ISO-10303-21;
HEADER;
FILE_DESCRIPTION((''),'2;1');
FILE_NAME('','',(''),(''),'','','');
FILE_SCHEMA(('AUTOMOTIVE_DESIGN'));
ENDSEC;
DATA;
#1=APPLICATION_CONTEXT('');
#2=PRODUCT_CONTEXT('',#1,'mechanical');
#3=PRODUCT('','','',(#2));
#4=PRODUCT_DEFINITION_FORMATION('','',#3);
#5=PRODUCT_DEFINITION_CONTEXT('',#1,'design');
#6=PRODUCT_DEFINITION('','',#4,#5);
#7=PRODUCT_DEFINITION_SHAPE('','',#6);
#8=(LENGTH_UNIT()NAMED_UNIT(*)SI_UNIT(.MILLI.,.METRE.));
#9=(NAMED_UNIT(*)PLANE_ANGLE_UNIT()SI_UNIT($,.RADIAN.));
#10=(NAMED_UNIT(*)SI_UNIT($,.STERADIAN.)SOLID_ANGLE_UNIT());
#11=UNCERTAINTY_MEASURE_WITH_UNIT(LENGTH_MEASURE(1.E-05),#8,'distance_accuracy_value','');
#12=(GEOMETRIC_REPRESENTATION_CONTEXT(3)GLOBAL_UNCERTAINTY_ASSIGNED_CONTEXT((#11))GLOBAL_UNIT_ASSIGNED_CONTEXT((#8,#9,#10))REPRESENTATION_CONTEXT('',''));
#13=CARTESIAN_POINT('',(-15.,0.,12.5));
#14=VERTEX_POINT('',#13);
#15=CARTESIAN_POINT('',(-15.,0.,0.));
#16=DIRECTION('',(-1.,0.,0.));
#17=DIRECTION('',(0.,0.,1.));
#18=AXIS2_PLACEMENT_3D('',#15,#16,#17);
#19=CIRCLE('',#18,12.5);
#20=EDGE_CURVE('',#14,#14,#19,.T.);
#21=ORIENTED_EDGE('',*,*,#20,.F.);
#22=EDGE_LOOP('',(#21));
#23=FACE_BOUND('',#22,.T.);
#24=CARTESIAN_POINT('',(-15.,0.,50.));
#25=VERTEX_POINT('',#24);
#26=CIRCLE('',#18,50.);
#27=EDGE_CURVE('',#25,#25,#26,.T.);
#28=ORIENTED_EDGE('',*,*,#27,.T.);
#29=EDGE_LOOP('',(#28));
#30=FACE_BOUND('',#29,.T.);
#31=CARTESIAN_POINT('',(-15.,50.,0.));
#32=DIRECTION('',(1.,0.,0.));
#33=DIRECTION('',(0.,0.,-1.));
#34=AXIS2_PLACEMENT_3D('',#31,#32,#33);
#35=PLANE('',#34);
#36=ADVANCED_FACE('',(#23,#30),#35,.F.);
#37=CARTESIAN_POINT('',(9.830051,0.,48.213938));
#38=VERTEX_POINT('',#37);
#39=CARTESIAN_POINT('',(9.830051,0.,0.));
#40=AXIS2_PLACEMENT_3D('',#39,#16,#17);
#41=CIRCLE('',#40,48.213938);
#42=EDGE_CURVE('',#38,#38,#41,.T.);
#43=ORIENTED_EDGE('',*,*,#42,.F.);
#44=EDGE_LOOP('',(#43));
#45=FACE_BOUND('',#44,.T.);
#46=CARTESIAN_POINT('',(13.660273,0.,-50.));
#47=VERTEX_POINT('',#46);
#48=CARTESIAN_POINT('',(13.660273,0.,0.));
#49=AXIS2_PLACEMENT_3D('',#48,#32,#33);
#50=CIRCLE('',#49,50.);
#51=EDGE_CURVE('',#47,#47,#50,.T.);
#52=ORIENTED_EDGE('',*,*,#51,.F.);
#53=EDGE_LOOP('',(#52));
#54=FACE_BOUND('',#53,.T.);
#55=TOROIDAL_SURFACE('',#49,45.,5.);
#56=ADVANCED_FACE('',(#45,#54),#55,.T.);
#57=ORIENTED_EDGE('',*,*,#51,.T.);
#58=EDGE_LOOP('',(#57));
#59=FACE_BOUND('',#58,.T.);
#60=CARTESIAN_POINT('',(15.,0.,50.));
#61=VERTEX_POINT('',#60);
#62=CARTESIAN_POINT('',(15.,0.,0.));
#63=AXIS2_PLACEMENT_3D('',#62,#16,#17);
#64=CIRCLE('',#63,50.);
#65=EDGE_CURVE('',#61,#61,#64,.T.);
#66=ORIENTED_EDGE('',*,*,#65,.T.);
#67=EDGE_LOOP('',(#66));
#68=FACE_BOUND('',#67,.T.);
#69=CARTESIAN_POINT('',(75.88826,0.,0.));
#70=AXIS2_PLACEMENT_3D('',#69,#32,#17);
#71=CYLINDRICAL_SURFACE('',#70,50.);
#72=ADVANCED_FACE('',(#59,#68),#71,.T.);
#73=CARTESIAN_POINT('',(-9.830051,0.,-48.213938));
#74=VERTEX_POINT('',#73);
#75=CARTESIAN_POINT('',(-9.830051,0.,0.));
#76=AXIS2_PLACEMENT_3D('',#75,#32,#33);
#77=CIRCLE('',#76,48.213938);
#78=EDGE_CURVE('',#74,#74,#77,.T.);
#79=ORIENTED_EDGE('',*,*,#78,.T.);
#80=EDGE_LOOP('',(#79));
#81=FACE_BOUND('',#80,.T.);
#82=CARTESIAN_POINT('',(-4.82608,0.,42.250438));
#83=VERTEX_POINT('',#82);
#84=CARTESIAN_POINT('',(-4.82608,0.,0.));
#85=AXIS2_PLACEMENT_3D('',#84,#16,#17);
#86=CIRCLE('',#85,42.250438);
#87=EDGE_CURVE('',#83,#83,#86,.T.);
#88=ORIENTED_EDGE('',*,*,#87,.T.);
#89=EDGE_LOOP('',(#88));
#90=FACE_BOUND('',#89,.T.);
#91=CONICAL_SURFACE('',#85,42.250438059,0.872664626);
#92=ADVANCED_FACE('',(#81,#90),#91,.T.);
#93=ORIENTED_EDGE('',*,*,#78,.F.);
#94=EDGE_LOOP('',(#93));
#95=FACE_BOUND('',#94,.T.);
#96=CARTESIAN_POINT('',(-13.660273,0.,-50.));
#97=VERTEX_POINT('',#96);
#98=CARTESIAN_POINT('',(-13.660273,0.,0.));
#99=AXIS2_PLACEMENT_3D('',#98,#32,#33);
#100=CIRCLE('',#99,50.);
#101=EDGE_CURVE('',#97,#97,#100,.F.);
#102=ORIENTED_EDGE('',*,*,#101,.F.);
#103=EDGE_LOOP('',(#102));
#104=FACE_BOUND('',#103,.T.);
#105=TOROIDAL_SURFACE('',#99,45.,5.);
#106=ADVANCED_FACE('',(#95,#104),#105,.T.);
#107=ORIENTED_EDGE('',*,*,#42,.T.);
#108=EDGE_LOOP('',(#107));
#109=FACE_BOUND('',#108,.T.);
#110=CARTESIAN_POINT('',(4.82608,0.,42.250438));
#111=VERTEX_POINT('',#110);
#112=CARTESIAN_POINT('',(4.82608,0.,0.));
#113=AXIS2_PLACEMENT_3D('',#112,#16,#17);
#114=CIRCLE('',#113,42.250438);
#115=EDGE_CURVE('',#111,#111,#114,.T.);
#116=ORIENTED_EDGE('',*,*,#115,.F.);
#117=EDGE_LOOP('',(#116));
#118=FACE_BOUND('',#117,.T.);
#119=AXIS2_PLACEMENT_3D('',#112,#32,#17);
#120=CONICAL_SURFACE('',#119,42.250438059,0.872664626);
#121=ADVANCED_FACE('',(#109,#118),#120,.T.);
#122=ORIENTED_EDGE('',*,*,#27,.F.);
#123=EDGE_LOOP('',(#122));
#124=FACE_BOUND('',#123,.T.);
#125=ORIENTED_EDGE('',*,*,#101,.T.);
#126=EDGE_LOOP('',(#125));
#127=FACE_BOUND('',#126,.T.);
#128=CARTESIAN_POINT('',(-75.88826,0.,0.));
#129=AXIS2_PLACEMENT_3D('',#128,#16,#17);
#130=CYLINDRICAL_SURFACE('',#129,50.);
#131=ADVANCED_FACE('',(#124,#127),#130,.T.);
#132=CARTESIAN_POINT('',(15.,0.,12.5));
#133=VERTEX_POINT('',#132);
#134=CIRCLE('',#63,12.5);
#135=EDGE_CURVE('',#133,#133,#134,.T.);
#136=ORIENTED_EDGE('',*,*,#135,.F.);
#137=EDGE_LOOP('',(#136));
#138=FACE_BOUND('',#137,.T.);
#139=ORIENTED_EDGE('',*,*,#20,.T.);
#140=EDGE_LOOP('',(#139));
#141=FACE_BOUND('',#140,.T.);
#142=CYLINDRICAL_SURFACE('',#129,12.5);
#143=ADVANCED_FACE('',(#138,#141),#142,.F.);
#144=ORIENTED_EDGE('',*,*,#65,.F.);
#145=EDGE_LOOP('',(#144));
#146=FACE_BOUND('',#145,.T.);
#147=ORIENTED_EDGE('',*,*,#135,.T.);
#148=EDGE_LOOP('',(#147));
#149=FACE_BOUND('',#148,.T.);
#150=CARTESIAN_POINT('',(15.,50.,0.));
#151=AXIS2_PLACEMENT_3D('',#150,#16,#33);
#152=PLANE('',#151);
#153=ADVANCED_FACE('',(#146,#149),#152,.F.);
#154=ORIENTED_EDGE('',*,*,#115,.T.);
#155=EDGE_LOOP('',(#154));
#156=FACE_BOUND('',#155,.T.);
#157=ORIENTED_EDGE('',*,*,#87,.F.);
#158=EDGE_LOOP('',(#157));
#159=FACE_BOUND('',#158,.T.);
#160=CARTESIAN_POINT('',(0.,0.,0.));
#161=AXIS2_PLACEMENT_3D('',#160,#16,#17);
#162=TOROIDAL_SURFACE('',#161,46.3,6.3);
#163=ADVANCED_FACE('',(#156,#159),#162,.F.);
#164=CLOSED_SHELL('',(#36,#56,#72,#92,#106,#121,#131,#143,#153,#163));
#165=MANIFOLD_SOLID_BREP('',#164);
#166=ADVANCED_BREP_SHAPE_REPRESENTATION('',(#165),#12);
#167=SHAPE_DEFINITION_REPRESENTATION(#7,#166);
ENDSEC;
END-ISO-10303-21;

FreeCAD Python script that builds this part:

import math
import FreeCAD as App
import Part
import Sketcher
Q = App.Units.Quantity


def edges_at(feature, points):
    """Names of the edges that pass closest to the given points."""
    edges = feature.Shape.Edges
    near = lambda p: min(range(len(edges)), key=lambda i: edges[i].distToShape(Part.Vertex(*p))[0])
    return sorted({f"Edge{near(p) + 1}" for p in points})

doc = App.newDocument("Part")
params = doc.addObject("Spreadsheet::Sheet", "Params")
for row, (alias, value) in enumerate([
    ("sketch1_radius", "6.3 mm"),
    ("sketch1_width", "15 mm"),
    ("sketch1_height", "37.5 mm"),
    ("sketch1_height2", "27.5 mm"),
    ("revolution_angle", "360 deg"),
    ("fillet_radius", "5 mm"),
], start=1):
    params.set(f"A{row}", alias)
    params.set(f"B{row}", "=" + value)
    params.setAlias(f"B{row}", alias)

body = doc.addObject("PartDesign::Body", "Body")

# Sketch on XY plane
sketch1 = doc.addObject("Sketcher::SketchObject", "Sketch")
body.addObject(sketch1)
sketch1.AttachmentSupport = (doc.XY_Plane, [""])
sketch1.MapMode = "FlatFace"
sketch1.addGeometry(Part.LineSegment(App.Vector(-11.3, 50, 0), App.Vector(-15, 50, 0)), False)
sketch1.addGeometry(Part.LineSegment(App.Vector(-15, 50, 0), App.Vector(-15, 12.5, 0)), False)
sketch1.addGeometry(Part.LineSegment(App.Vector(-15, 12.5, 0), App.Vector(0, 12.5, 0)), False)
sketch1.addGeometry(Part.LineSegment(App.Vector(0, 12.5, 0), App.Vector(0, 40, 0)), False)
sketch1.addGeometry(Part.ArcOfCircle(Part.Circle(App.Vector(0, 46.3, 0), App.Vector(0, 0, 1), 6.3), math.radians(-140), math.radians(-90)), False)
sketch1.addGeometry(Part.LineSegment(App.Vector(-4.8, 42.3, 0), App.Vector(-11.3, 50, 0)), False)
sketch1.addConstraint(Sketcher.Constraint("Coincident", 0, 2, 1, 1))
sketch1.addConstraint(Sketcher.Constraint("Coincident", 1, 2, 2, 1))
sketch1.addConstraint(Sketcher.Constraint("Coincident", 2, 2, 3, 1))
sketch1.addConstraint(Sketcher.Constraint("Coincident", 3, 2, 4, 2))
sketch1.addConstraint(Sketcher.Constraint("Tangent", 4, 1, 5, 1))
sketch1.addConstraint(Sketcher.Constraint("Coincident", 5, 2, 0, 1))
sketch1.addConstraint(Sketcher.Constraint("Horizontal", 0))
sketch1.addConstraint(Sketcher.Constraint("Vertical", 1))
sketch1.addConstraint(Sketcher.Constraint("Horizontal", 2))
sketch1.addConstraint(Sketcher.Constraint("Vertical", 3))
sketch1.addConstraint(Sketcher.Constraint("PointOnObject", 4, 3, -2))
sketch1.addConstraint(Sketcher.Constraint("PointOnObject", 2, 2, -2))
sketch1.addConstraint(Sketcher.Constraint("Radius", 4, 6.3))
sketch1.addConstraint(Sketcher.Constraint("DistanceX", 2, 1, 2, 2, 15.0))
sketch1.addConstraint(Sketcher.Constraint("Angle", 5, Q("130 deg")))
sketch1.addConstraint(Sketcher.Constraint("DistanceY", 1, 2, 1, 1, 37.5))
sketch1.addConstraint(Sketcher.Constraint("DistanceY", 3, 1, 3, 2, 27.5))
sketch1.addConstraint(Sketcher.Constraint("DistanceY", -1, 1, 0, 2, 50.0))
sketch1.setExpression("Constraints[12]", "Params.sketch1_radius")
sketch1.setExpression("Constraints[13]", "Params.sketch1_width")
sketch1.setExpression("Constraints[15]", "Params.sketch1_height")
sketch1.setExpression("Constraints[16]", "Params.sketch1_height2")
revolution = doc.addObject("PartDesign::Revolution", "Revolution")
body.addObject(revolution)
revolution.Profile = sketch1
revolution.ReferenceAxis = (sketch1, ["H_Axis"])
revolution.setExpression("Angle", "Params.revolution_angle")
doc.recompute()

mirrored = doc.addObject("PartDesign::Mirrored", "Mirrored")
body.addObject(mirrored)
mirrored.Originals = [revolution]
mirrored.MirrorPlane = (doc.YZ_Plane, [""])
body.Tip = mirrored
doc.recompute()

fillet = doc.addObject("PartDesign::Fillet", "Fillet")
body.addObject(fillet)
fillet.Base = (mirrored, edges_at(mirrored, [(11.329, -50, 0), (-11.329, -50, 0)]))
fillet.setExpression("Radius", "Params.fillet_radius")

doc.recompute()
